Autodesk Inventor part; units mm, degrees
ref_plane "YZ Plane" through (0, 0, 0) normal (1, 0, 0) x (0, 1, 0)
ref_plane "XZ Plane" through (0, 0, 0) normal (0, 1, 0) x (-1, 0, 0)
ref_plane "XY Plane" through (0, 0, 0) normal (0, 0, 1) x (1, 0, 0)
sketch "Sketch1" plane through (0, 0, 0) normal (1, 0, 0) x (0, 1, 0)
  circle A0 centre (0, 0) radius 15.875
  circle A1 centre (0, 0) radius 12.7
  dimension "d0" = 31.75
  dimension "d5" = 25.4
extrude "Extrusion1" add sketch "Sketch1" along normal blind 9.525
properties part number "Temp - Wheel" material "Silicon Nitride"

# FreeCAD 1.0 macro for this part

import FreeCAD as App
import Part
import Sketcher
from FreeCAD import Vector
Q = App.Units.Quantity

doc = App.newDocument("Part")
body = doc.addObject("PartDesign::Body", "Body")

# Sketch on YZ plane
sketch1 = body.newObject("Sketcher::SketchObject", "Sketch")
sketch1.AttachmentSupport = (doc.getObject("YZ_Plane"), [""])
sketch1.MapMode = "FlatFace"
sketch1.addGeometry([
    Part.Circle(Vector(0, 0, 0), Vector(0, 0, 1), 15.875),
    Part.Circle(Vector(0, 0, 0), Vector(0, 0, 1), 12.7),
], False)
sketch1.addConstraint([
    Sketcher.Constraint("Coincident", 0, 3, -1, 1),
    Sketcher.Constraint("Coincident", 1, 3, -1, 1),
    Sketcher.Constraint("Diameter", 1, Q("1 in")),
    Sketcher.Constraint("Diameter", 0, Q("1.25 in")),
])
pad1 = body.newObject("PartDesign::Pad", "Pad")
pad1.Profile = sketch1
pad1.Length = Q("0.375 in")

doc.recompute()
